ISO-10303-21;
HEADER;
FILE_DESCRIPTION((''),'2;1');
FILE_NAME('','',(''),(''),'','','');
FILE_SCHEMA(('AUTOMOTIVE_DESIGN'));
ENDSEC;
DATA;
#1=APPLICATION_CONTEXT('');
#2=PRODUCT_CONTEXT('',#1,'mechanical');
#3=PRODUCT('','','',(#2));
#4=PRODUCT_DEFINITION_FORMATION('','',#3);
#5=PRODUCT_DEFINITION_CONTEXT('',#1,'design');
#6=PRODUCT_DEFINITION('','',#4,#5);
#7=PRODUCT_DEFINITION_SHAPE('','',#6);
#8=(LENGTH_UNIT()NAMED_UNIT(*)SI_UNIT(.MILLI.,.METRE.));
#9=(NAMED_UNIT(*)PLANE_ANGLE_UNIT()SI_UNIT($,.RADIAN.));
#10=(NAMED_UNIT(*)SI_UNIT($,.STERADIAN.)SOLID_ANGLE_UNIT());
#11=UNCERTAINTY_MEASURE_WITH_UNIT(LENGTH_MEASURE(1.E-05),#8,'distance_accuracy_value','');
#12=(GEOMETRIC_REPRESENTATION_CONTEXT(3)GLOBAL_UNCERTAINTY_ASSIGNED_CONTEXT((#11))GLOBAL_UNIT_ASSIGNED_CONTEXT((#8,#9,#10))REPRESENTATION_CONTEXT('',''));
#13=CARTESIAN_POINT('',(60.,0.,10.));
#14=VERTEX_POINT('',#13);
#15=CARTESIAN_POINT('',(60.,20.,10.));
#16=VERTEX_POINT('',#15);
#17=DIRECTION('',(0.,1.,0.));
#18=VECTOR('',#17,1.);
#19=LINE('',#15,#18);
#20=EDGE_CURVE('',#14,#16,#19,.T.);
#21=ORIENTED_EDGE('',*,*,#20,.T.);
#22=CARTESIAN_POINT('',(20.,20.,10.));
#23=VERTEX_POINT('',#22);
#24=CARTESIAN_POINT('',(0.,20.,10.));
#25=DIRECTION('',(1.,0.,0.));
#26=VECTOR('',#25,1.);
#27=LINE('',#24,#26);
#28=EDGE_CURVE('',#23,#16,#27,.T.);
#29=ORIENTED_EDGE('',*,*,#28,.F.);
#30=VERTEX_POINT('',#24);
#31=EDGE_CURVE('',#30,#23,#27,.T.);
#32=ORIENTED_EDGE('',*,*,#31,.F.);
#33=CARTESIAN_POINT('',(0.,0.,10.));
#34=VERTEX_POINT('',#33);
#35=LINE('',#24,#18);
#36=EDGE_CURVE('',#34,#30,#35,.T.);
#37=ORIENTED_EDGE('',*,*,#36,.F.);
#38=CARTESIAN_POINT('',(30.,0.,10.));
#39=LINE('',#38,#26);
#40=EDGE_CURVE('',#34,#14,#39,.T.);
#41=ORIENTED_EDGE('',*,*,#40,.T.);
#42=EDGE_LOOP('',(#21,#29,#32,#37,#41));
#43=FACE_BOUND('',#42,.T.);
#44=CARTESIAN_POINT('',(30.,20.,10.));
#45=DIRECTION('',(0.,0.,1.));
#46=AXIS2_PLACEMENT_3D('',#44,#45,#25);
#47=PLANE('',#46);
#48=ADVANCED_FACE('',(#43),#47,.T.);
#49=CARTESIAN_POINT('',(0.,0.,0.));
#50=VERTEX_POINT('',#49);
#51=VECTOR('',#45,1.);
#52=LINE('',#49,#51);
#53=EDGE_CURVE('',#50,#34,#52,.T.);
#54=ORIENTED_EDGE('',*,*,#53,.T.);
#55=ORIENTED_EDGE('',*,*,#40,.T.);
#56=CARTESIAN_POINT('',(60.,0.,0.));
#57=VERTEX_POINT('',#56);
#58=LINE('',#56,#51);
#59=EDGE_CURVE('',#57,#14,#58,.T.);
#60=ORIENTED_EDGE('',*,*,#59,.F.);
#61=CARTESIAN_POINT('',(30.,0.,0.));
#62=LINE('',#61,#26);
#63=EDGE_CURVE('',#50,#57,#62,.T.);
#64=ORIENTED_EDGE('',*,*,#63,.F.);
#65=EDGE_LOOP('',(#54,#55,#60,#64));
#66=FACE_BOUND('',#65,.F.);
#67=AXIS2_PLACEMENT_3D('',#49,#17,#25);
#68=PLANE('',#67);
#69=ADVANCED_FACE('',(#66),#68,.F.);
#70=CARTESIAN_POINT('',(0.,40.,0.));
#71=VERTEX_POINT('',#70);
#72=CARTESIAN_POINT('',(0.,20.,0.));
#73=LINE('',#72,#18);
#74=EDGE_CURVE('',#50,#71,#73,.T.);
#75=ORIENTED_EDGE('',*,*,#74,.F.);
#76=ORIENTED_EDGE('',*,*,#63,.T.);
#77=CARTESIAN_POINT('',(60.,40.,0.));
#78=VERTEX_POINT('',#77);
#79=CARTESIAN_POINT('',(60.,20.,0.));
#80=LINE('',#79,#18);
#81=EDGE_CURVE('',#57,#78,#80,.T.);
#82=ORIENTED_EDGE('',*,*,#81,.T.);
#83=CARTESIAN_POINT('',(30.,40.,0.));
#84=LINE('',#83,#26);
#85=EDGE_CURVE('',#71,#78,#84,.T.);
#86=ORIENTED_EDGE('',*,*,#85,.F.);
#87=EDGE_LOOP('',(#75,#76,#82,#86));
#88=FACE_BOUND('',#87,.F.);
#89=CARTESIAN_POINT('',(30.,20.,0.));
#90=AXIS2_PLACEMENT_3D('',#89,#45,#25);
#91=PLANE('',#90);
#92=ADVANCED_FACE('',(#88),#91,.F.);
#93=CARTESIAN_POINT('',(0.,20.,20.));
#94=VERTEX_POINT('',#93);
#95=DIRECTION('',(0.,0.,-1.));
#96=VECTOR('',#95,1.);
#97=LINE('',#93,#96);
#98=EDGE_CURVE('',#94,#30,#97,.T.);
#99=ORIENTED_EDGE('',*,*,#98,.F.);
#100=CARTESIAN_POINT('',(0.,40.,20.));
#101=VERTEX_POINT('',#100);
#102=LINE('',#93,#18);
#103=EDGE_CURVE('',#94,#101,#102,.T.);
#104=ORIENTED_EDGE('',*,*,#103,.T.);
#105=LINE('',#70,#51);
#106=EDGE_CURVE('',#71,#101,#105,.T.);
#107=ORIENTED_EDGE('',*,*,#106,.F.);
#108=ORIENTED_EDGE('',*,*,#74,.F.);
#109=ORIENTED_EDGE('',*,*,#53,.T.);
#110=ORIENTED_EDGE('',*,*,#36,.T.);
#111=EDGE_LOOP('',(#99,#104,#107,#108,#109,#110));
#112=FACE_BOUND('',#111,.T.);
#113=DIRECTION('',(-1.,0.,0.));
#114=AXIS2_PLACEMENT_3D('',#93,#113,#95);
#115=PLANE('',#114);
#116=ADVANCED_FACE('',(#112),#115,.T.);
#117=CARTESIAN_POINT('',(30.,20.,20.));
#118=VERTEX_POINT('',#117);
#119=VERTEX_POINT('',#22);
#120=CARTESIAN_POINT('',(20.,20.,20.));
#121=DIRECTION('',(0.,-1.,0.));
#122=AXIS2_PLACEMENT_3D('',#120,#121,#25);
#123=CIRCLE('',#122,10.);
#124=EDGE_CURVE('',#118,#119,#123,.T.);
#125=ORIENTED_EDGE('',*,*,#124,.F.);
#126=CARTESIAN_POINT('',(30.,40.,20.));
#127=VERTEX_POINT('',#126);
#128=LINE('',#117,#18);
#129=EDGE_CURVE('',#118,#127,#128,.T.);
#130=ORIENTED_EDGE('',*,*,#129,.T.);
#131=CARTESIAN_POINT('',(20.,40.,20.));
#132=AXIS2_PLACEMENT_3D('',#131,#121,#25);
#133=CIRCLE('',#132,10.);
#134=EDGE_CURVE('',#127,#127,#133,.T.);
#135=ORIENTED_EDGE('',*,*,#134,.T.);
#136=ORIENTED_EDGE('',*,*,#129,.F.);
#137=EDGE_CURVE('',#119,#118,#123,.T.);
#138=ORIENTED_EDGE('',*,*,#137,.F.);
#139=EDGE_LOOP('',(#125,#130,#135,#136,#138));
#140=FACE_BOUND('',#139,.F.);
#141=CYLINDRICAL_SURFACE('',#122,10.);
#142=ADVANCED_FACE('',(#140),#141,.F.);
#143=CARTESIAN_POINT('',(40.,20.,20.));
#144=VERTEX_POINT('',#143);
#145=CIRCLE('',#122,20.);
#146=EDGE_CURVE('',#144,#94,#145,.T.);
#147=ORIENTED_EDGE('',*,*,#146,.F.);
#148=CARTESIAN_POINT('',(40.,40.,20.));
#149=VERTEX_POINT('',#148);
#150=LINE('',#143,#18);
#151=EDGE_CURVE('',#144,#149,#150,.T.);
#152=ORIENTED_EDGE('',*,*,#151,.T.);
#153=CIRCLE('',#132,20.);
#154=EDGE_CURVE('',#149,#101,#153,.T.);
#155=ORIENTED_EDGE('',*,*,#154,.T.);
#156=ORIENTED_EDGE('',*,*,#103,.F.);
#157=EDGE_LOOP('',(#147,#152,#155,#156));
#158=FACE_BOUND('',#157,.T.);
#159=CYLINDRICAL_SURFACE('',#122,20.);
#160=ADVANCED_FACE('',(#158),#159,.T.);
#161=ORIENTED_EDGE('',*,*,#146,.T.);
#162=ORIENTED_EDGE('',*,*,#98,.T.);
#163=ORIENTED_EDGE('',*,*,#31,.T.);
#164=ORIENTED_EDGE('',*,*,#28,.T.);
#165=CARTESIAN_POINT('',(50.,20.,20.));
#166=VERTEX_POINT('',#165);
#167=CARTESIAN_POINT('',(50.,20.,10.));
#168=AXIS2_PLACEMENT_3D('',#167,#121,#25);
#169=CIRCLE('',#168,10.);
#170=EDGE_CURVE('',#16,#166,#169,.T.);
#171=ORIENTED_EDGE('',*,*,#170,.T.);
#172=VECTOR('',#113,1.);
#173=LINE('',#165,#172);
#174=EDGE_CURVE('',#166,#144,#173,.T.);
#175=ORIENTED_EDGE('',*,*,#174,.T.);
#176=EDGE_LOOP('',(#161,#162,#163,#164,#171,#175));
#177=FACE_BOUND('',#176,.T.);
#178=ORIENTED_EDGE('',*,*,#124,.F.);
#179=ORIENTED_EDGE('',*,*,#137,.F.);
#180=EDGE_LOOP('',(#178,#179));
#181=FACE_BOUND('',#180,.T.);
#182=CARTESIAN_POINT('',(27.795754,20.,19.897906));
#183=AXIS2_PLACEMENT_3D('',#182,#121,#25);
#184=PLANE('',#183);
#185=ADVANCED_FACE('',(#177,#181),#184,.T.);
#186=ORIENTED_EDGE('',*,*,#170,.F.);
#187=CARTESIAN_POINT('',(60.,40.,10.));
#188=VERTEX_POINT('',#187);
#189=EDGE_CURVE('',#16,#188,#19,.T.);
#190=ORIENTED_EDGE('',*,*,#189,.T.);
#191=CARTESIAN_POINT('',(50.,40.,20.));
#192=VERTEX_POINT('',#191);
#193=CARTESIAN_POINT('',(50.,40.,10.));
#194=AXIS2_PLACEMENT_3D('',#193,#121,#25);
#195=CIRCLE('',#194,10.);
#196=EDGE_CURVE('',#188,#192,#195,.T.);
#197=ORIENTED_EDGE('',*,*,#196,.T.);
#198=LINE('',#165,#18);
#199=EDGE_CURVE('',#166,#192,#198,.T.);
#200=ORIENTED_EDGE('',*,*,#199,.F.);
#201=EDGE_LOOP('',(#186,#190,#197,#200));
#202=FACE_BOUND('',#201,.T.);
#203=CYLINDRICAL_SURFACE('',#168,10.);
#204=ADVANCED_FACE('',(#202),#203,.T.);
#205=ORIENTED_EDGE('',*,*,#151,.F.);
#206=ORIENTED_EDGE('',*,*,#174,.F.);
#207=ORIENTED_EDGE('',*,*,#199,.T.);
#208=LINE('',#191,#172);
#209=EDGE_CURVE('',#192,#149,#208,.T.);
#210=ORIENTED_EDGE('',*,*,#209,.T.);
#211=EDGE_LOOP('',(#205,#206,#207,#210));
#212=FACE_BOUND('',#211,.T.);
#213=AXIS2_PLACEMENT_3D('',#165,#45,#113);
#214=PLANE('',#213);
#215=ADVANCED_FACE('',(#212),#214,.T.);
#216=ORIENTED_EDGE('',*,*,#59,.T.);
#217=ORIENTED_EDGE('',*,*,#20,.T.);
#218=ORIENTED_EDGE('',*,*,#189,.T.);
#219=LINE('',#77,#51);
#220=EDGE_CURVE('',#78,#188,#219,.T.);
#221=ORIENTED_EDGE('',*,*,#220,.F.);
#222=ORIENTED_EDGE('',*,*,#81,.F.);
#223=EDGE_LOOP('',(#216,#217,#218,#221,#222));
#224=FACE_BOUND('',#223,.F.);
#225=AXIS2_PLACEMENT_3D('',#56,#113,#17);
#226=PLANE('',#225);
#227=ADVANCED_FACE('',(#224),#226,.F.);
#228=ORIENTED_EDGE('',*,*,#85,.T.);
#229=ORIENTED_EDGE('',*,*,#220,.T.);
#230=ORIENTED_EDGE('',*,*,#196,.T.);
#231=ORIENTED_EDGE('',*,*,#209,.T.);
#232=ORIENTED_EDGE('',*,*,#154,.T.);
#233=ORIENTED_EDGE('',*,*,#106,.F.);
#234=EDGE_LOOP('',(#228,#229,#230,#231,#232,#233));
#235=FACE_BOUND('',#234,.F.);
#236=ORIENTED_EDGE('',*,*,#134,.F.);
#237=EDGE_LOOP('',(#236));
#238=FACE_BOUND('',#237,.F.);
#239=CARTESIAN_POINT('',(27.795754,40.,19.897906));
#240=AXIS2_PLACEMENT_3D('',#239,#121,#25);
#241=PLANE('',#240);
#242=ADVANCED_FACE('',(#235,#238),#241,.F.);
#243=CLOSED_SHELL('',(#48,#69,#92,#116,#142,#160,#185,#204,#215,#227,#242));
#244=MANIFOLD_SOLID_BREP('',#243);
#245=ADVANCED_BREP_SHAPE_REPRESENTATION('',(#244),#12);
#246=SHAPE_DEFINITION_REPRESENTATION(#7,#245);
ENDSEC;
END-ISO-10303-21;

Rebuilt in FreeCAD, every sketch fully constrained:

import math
import FreeCAD as App
import Part
import Sketcher
Q = App.Units.Quantity


def add_polygon(sketch, points):
    """Adds a closed chain of lines whose ends are joined by coincident constraints."""
    first, n = sketch.GeometryCount, len(points)
    for a, b in zip(points, points[1:] + points[:1]):
        sketch.addGeometry(Part.LineSegment(App.Vector(*a, 0), App.Vector(*b, 0)), False)
    for i in range(n):
        sketch.addConstraint(Sketcher.Constraint("Coincident", first + i, 2, first + (i + 1) % n, 1))

doc = App.newDocument("Part")
body = doc.addObject("PartDesign::Body", "Body")

# Sketch on XY plane
sketch1 = doc.addObject("Sketcher::SketchObject", "Sketch")
body.addObject(sketch1)
sketch1.AttachmentSupport = (doc.XY_Plane, [""])
sketch1.MapMode = "FlatFace"
add_polygon(sketch1, [(0, 40), (0, 0), (60, 0), (60, 40)])  # lines 0-3
sketch1.addConstraint([
    Sketcher.Constraint("Vertical", 0),
    Sketcher.Constraint("Horizontal", 1),
    Sketcher.Constraint("Vertical", 2),
    Sketcher.Constraint("Horizontal", 3),
    Sketcher.Constraint("Coincident", 0, 2, -1, 1),
    Sketcher.Constraint("DistanceX", 1, 1, 1, 2, Q("60 mm")),
    Sketcher.Constraint("DistanceY", 0, 2, 0, 1, Q("40 mm")),
])
pad1 = doc.addObject("PartDesign::Pad", "Pad")
body.addObject(pad1)
pad1.Profile = sketch1
pad1.Length = 10

# Sketch on XZ plane
sketch2 = doc.addObject("Sketcher::SketchObject", "Sketch001")
body.addObject(sketch2)
sketch2.AttachmentSupport = (doc.XZ_Plane, [""])
sketch2.MapMode = "FlatFace"
sketch2.AttachmentOffset = App.Placement(App.Vector(0, 0, -20), App.Rotation())
sketch2.addGeometry([
    Part.LineSegment(App.Vector(50, 20, 0), App.Vector(40, 20, 0)),  # 0
    Part.ArcOfCircle(Part.Circle(App.Vector(20, 20, 0), App.Vector(0, 0, 1), 20), math.radians(0), math.radians(180)),  # 1
    Part.LineSegment(App.Vector(0, 20, 0), App.Vector(0, 10, 0)),  # 2
    Part.LineSegment(App.Vector(0, 10, 0), App.Vector(60, 10, 0)),  # 3
    Part.ArcOfCircle(Part.Circle(App.Vector(50, 10, 0), App.Vector(0, 0, 1), 10), math.radians(0), math.radians(90)),  # 4
], False)
sketch2.addConstraint([
    Sketcher.Constraint("Coincident", 0, 2, 1, 1),
    Sketcher.Constraint("Tangent", 1, 2, 2, 1),
    Sketcher.Constraint("Coincident", 2, 2, 3, 1),
    Sketcher.Constraint("Coincident", 3, 2, 4, 1),
    Sketcher.Constraint("Tangent", 4, 2, 0, 1),
    Sketcher.Constraint("Horizontal", 0),
    Sketcher.Constraint("Vertical", 2),
    Sketcher.Constraint("Horizontal", 3),
    Sketcher.Constraint("PointOnObject", 1, 2, -2),
    Sketcher.Constraint("Horizontal", 1, 3, 0, 2),
    Sketcher.Constraint("Horizontal", 4, 3, 2, 2),
    Sketcher.Constraint("Equal", 0, 2),
    Sketcher.Constraint("Radius", 1, Q("20 mm")),
    Sketcher.Constraint("Radius", 4, Q("10 mm")),
    Sketcher.Constraint("DistanceY", -1, 1, 1, 3, Q("20 mm")),
])
pad2 = doc.addObject("PartDesign::Pad", "Pad001")
body.addObject(pad2)
pad2.Profile = sketch2
pad2.Length = 20
pad2.Reversed = True

# Sketch on XZ plane
sketch3 = doc.addObject("Sketcher::SketchObject", "Sketch002")
body.addObject(sketch3)
sketch3.AttachmentSupport = (doc.XZ_Plane, [""])
sketch3.MapMode = "FlatFace"
sketch3.AttachmentOffset = App.Placement(App.Vector(0, 0, -20), App.Rotation())
sketch3.addGeometry(Part.Circle(App.Vector(20, 20, 0), App.Vector(0, 0, 1), 10), False)
sketch3.addConstraint([
    Sketcher.Constraint("Diameter", 0, Q("20 mm")),
    Sketcher.Constraint("DistanceX", -1, 1, 0, 3, Q("20 mm")),
    Sketcher.Constraint("DistanceY", -1, 1, 0, 3, Q("20 mm")),
])
pocket1 = doc.addObject("PartDesign::Pocket", "Pocket")
body.addObject(pocket1)
pocket1.Profile = sketch3
pocket1.Length = 25

doc.recompute()
